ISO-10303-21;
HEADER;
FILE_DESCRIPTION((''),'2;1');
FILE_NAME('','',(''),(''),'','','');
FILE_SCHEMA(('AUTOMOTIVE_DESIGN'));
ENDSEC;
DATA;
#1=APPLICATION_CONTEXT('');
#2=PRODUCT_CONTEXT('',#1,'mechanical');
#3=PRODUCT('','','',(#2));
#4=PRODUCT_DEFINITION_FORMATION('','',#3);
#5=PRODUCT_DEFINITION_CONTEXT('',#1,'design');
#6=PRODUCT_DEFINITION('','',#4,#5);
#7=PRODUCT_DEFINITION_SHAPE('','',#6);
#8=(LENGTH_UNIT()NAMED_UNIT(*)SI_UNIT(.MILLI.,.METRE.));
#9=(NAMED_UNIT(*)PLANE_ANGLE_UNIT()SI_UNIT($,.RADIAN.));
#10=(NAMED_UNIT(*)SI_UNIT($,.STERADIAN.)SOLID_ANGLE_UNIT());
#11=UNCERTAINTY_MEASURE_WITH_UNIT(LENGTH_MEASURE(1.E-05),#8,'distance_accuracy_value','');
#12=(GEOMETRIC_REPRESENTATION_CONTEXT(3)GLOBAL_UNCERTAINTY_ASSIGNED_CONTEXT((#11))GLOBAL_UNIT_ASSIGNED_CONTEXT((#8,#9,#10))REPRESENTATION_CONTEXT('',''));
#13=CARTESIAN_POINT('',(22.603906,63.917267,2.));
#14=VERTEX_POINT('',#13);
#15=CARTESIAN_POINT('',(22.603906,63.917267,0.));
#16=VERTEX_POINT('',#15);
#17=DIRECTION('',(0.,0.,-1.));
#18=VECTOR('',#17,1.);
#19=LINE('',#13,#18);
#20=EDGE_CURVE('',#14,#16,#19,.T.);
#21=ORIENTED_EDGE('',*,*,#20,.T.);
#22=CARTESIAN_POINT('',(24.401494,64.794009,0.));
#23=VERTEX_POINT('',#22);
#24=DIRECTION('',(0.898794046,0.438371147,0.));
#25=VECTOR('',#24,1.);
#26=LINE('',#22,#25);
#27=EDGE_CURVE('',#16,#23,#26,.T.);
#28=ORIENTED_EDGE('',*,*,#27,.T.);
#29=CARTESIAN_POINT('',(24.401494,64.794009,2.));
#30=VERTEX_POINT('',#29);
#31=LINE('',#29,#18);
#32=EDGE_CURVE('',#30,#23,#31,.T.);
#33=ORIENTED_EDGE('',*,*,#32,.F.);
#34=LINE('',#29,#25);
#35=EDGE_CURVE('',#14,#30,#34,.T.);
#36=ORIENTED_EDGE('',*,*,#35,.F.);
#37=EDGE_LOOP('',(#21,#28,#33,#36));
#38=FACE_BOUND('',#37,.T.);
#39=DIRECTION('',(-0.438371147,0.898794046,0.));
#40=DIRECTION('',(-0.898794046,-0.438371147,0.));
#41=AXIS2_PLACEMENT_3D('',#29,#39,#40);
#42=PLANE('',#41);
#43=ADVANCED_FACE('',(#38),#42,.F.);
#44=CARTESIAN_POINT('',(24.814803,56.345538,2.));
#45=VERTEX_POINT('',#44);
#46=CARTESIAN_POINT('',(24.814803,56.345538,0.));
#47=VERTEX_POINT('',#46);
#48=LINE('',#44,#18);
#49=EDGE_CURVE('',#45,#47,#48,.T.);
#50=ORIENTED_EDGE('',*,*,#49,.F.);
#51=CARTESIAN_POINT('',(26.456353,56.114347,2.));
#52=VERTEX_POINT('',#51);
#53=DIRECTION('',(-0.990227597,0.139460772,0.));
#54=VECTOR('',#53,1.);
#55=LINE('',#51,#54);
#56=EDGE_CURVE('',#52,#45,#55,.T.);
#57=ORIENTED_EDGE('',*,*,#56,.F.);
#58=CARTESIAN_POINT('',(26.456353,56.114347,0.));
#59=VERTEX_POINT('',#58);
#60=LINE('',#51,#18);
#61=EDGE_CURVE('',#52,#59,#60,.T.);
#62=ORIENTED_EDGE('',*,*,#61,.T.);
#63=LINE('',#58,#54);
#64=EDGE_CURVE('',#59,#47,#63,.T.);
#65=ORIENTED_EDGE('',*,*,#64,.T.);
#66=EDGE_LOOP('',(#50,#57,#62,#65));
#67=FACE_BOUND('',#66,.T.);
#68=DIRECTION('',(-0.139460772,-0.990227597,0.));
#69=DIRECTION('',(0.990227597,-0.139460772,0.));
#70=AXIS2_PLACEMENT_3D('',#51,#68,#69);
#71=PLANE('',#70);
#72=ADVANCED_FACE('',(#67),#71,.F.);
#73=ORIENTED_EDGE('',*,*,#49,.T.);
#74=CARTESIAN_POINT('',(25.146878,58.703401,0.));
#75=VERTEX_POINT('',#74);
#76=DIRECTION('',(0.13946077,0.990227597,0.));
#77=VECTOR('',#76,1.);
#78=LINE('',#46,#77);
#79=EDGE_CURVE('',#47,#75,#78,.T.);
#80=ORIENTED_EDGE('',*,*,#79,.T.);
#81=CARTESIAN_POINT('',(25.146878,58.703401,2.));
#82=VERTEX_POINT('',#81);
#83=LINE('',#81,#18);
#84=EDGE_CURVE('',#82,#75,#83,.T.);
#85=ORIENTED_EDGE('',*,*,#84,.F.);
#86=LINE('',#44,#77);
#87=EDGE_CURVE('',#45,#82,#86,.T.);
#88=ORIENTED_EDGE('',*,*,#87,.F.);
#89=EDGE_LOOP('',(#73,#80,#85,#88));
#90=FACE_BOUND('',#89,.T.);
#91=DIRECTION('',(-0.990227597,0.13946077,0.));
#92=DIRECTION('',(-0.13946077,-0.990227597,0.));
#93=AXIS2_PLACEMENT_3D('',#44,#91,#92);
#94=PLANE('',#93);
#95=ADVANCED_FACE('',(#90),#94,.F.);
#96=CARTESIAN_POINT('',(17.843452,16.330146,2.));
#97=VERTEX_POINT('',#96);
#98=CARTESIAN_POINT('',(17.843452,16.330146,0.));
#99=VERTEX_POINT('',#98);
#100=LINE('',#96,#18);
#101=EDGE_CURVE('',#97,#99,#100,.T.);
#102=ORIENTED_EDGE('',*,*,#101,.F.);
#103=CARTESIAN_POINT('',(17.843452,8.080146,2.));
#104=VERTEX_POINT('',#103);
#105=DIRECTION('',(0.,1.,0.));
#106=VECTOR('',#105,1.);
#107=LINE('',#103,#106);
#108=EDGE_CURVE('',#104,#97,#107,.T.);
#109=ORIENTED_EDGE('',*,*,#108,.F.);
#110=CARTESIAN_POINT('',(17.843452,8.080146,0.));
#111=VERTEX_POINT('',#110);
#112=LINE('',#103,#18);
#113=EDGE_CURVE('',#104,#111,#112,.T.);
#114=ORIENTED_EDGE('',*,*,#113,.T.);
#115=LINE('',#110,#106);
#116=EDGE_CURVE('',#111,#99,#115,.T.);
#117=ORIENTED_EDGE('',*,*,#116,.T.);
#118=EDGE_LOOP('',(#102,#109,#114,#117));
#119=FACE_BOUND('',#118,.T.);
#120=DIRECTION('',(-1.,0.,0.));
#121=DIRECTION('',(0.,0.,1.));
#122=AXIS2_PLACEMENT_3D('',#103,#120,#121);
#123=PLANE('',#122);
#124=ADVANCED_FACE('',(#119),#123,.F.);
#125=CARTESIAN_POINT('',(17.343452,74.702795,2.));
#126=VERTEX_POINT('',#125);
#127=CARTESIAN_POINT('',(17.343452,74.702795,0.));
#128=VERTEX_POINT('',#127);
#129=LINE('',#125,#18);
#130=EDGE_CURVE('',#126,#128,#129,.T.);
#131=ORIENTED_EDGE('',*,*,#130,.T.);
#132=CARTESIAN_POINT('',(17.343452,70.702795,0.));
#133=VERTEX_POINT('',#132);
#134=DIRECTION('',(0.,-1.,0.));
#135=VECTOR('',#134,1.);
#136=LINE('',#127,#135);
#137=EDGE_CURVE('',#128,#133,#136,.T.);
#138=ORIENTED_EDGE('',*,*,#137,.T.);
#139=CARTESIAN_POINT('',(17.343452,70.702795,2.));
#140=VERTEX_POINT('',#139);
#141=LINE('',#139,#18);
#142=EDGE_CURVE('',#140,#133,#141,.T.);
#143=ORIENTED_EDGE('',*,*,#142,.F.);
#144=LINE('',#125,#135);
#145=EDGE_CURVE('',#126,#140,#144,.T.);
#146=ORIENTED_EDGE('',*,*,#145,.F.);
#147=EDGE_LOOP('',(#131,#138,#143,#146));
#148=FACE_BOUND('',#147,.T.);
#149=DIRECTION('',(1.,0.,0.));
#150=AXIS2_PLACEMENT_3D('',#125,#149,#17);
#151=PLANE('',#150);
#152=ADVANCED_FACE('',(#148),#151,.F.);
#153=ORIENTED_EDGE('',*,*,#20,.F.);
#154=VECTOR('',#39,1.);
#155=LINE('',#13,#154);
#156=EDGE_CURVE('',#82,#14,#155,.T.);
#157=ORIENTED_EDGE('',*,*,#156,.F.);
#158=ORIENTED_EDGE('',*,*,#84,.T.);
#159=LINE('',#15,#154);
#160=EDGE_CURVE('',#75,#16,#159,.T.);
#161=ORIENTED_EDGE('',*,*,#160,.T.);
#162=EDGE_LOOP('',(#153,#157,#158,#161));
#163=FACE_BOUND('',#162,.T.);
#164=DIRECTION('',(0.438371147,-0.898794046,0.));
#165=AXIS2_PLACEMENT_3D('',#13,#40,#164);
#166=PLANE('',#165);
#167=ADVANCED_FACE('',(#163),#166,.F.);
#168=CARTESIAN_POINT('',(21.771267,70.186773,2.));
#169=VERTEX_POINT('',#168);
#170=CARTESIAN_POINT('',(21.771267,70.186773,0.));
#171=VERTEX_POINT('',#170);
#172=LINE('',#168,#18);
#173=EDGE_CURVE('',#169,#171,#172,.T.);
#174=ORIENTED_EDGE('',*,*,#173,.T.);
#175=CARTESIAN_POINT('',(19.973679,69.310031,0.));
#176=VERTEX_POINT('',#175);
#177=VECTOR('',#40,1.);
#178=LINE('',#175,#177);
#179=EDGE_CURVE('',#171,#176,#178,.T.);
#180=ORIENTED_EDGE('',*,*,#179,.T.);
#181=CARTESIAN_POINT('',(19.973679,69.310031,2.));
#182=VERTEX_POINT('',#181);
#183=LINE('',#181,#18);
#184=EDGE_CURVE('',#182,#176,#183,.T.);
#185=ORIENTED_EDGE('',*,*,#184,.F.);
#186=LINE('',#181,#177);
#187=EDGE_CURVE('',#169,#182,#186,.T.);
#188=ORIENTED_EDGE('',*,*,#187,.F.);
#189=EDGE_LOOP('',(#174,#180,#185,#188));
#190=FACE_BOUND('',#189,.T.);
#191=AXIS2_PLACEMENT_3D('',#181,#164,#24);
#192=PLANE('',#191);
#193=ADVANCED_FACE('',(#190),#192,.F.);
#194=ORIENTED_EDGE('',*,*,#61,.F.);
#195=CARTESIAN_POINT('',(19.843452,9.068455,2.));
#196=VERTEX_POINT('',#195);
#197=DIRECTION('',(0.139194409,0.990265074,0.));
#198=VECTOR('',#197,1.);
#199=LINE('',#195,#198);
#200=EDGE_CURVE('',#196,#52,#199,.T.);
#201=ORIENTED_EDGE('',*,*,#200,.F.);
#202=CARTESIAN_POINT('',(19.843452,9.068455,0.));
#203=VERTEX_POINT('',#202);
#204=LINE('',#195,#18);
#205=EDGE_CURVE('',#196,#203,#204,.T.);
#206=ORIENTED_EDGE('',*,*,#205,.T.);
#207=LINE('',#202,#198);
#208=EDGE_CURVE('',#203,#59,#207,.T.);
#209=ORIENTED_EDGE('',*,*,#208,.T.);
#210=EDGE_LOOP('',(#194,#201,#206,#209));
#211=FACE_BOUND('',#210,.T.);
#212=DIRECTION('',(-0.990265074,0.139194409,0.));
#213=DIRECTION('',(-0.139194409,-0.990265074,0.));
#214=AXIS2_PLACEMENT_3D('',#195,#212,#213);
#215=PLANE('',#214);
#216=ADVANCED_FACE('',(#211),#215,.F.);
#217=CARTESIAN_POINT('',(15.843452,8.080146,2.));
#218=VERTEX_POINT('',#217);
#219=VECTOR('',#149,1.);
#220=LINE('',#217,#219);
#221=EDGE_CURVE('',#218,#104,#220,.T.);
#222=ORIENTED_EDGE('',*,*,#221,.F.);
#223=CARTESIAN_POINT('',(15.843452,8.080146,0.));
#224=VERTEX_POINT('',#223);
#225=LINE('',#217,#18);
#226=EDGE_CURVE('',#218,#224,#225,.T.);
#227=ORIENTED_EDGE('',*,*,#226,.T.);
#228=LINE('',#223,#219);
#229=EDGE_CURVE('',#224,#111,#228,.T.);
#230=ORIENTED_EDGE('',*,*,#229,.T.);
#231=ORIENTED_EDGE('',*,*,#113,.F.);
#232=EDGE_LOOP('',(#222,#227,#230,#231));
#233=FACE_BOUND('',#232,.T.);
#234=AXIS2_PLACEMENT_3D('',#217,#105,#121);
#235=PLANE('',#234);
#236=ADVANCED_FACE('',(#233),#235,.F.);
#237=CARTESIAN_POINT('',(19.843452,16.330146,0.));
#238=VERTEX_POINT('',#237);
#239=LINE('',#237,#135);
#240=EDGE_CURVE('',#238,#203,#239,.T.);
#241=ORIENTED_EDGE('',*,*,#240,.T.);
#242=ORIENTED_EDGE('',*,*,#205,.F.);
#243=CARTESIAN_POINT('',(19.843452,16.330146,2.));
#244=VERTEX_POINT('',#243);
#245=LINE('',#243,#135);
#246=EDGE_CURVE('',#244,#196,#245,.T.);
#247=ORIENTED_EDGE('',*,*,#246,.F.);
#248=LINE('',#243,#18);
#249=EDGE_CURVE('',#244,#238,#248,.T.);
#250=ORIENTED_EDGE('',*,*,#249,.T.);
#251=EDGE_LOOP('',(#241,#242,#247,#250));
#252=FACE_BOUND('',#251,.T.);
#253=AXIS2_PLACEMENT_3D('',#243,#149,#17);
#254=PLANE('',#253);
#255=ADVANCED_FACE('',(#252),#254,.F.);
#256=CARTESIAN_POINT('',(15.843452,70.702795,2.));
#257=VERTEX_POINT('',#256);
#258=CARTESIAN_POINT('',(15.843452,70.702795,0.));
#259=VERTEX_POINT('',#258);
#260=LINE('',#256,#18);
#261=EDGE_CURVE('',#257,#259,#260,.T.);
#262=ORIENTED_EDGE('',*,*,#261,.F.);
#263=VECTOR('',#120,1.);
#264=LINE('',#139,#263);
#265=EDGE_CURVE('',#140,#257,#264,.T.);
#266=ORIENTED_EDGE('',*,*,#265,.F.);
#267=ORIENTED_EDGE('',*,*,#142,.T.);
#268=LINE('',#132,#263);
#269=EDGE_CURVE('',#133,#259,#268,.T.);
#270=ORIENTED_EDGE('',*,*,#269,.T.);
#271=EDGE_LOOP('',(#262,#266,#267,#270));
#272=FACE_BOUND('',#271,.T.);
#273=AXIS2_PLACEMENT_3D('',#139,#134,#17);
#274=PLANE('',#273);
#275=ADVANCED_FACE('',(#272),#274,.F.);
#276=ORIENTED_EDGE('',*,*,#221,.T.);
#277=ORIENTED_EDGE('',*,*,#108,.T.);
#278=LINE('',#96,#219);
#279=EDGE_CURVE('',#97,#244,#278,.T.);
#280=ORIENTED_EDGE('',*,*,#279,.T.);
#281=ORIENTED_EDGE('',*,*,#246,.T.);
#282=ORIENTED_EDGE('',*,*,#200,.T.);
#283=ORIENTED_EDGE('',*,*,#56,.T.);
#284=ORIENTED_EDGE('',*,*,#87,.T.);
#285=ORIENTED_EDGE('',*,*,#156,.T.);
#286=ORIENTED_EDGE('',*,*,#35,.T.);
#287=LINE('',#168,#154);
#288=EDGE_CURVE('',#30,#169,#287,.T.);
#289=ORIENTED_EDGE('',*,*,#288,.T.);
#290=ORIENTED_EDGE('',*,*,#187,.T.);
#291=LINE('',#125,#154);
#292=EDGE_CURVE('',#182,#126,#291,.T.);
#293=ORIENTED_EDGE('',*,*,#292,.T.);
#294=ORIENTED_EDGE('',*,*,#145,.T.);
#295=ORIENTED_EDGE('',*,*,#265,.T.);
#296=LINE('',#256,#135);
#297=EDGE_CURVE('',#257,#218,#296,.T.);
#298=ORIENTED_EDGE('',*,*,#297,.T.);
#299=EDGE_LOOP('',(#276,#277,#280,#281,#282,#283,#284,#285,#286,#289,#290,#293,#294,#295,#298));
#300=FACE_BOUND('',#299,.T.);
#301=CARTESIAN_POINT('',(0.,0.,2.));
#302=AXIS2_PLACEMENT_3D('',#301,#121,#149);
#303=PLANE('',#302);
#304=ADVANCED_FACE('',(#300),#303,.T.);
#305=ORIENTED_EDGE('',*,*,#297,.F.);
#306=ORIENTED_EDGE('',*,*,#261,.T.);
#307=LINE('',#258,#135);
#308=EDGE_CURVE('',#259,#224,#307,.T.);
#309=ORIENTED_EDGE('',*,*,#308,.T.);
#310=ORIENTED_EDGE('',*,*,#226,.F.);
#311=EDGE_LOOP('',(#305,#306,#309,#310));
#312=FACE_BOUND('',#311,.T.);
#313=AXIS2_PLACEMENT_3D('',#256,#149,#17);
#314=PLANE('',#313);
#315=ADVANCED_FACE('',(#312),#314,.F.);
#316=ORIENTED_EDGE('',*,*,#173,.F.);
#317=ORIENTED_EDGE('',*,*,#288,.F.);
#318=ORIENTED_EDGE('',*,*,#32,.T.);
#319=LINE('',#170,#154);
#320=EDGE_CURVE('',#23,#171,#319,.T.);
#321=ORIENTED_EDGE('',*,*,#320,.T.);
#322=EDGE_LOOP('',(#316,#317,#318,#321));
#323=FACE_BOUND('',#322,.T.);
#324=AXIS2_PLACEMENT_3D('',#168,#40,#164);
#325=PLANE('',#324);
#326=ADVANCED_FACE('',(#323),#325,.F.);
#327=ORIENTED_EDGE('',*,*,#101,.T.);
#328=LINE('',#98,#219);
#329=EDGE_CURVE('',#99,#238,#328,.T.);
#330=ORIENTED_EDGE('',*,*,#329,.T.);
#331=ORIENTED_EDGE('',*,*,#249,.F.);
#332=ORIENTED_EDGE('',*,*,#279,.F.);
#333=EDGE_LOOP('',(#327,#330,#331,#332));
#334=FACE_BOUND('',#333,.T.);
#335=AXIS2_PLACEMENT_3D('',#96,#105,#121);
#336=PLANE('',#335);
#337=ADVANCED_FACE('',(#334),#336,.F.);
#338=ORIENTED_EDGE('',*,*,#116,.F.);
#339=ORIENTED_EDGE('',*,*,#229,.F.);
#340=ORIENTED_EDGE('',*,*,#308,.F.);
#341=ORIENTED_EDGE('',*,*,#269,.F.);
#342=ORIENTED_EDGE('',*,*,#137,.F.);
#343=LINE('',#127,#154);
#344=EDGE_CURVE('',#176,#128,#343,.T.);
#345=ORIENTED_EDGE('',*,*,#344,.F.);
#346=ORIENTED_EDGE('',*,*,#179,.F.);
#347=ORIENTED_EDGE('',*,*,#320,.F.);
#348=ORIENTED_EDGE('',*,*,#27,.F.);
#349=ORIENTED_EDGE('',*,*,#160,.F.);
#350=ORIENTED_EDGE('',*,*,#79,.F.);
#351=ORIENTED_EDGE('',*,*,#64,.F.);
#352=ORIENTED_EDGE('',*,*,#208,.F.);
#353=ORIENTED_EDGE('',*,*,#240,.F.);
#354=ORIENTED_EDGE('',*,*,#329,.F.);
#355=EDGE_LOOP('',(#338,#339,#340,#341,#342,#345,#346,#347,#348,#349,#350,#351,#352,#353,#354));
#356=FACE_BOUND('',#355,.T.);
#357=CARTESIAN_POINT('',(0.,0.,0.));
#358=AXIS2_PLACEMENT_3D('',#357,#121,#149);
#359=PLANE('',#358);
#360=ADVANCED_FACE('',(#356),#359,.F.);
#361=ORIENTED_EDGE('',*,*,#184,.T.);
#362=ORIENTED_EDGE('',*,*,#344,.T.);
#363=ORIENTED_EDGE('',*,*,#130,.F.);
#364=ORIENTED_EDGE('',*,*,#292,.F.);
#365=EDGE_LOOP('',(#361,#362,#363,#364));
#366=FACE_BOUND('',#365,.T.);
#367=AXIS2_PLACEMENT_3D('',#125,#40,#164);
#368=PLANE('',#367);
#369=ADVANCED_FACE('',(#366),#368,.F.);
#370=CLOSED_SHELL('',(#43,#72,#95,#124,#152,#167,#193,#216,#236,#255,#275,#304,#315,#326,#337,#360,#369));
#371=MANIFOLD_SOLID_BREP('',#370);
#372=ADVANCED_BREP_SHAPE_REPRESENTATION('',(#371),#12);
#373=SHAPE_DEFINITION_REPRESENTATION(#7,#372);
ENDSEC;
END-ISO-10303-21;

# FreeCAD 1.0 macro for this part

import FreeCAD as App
import Part
import Sketcher
from FreeCAD import Vector
Q = App.Units.Quantity


def add_polygon(sketch, points):
    """Adds a closed chain of lines whose ends are joined by coincident constraints."""
    first, n = sketch.GeometryCount, len(points)
    for a, b in zip(points, points[1:] + points[:1]):
        sketch.addGeometry(Part.LineSegment(App.Vector(*a, 0), App.Vector(*b, 0)), False)
    for i in range(n):
        sketch.addConstraint(Sketcher.Constraint("Coincident", first + i, 2, first + (i + 1) % n, 1))

doc = App.newDocument("Part")
body = doc.addObject("PartDesign::Body", "Body")

sketch1 = body.newObject("Sketcher::SketchObject", "Sketch")
sketch1.AttachmentSupport = (doc.getObject("XY_Plane"), [""])
sketch1.MapMode = "FlatFace"
add_polygon(sketch1, [(17.3, 74.7), (17.3, 70.7), (15.8, 70.7), (15.8, 8.1), (17.8, 8.1), (17.8, 16.3), (19.8, 16.3), (19.8, 9.1), (26.5, 56.1), (24.8, 56.3), (25.1, 58.7), (22.6, 63.9), (24.4, 64.8), (21.8, 70.2), (20, 69.3)])
sketch1.addConstraint(Sketcher.Constraint("Vertical", 0))
sketch1.addConstraint(Sketcher.Constraint("Horizontal", 1))
sketch1.addConstraint(Sketcher.Constraint("Vertical", 2))
sketch1.addConstraint(Sketcher.Constraint("Horizontal", 3))
sketch1.addConstraint(Sketcher.Constraint("Vertical", 4))
sketch1.addConstraint(Sketcher.Constraint("Horizontal", 5))
sketch1.addConstraint(Sketcher.Constraint("Vertical", 6))
sketch1.addConstraint(Sketcher.Constraint("Perpendicular", 8, 9))
sketch1.addConstraint(Sketcher.Constraint("Perpendicular", 10, 11))
sketch1.addConstraint(Sketcher.Constraint("Perpendicular", 11, 12))
sketch1.addConstraint(Sketcher.Constraint("Perpendicular", 12, 13))
sketch1.addConstraint(Sketcher.Constraint("Perpendicular", 13, 14))
sketch1.addConstraint(Sketcher.Constraint("Equal", 3, 5))
sketch1.addConstraint(Sketcher.Constraint("Equal", 11, 13))
sketch1.addConstraint(Sketcher.Constraint("Equal", 12, 14))
sketch1.addConstraint(Sketcher.Constraint("DistanceX", 3, 1, 3, 2, Q("2 mm")))
sketch1.addConstraint(Sketcher.Constraint("DistanceY", 0, 2, 0, 1, Q("4 mm")))
sketch1.addConstraint(Sketcher.Constraint("Angle", 10, Q("116 deg")))
sketch1.addConstraint(Sketcher.Constraint("Distance", 11, Q("2 mm")))
sketch1.addConstraint(Sketcher.Constraint("Distance", 12, Q("6 mm")))
sketch1.addConstraint(Sketcher.Constraint("DistanceX", 1, 2, 1, 1, Q("1.5 mm")))
sketch1.addConstraint(Sketcher.Constraint("DistanceY", 4, 1, 4, 2, Q("8.25 mm")))
sketch1.addConstraint(Sketcher.Constraint("DistanceY", 2, 2, 2, 1, Q("62.622649 mm")))
sketch1.addConstraint(Sketcher.Constraint("DistanceY", 6, 2, 6, 1, Q("7.261692 mm")))
sketch1.addConstraint(Sketcher.Constraint("DistanceY", -1, 1, 9, 2, Q("58.703401 mm")))
sketch1.addConstraint(Sketcher.Constraint("DistanceX", 0, 2, 7, 2, Q("9.112901 mm")))
sketch1.addConstraint(Sketcher.Constraint("DistanceY", 5, 2, 7, 2, Q("39.784201 mm")))
sketch1.addConstraint(Sketcher.Constraint("Distance", 8, Q("1.65775 mm")))
sketch1.addConstraint(Sketcher.Constraint("DistanceX", -1, 1, 0, 2, Q("17.343452 mm")))
sketch1.addConstraint(Sketcher.Constraint("DistanceY", -1, 1, 8, 2, Q("56.345538 mm")))
pad1 = body.newObject("PartDesign::Pad", "Pad")
pad1.Profile = sketch1
pad1.Length = 2

doc.recompute()
